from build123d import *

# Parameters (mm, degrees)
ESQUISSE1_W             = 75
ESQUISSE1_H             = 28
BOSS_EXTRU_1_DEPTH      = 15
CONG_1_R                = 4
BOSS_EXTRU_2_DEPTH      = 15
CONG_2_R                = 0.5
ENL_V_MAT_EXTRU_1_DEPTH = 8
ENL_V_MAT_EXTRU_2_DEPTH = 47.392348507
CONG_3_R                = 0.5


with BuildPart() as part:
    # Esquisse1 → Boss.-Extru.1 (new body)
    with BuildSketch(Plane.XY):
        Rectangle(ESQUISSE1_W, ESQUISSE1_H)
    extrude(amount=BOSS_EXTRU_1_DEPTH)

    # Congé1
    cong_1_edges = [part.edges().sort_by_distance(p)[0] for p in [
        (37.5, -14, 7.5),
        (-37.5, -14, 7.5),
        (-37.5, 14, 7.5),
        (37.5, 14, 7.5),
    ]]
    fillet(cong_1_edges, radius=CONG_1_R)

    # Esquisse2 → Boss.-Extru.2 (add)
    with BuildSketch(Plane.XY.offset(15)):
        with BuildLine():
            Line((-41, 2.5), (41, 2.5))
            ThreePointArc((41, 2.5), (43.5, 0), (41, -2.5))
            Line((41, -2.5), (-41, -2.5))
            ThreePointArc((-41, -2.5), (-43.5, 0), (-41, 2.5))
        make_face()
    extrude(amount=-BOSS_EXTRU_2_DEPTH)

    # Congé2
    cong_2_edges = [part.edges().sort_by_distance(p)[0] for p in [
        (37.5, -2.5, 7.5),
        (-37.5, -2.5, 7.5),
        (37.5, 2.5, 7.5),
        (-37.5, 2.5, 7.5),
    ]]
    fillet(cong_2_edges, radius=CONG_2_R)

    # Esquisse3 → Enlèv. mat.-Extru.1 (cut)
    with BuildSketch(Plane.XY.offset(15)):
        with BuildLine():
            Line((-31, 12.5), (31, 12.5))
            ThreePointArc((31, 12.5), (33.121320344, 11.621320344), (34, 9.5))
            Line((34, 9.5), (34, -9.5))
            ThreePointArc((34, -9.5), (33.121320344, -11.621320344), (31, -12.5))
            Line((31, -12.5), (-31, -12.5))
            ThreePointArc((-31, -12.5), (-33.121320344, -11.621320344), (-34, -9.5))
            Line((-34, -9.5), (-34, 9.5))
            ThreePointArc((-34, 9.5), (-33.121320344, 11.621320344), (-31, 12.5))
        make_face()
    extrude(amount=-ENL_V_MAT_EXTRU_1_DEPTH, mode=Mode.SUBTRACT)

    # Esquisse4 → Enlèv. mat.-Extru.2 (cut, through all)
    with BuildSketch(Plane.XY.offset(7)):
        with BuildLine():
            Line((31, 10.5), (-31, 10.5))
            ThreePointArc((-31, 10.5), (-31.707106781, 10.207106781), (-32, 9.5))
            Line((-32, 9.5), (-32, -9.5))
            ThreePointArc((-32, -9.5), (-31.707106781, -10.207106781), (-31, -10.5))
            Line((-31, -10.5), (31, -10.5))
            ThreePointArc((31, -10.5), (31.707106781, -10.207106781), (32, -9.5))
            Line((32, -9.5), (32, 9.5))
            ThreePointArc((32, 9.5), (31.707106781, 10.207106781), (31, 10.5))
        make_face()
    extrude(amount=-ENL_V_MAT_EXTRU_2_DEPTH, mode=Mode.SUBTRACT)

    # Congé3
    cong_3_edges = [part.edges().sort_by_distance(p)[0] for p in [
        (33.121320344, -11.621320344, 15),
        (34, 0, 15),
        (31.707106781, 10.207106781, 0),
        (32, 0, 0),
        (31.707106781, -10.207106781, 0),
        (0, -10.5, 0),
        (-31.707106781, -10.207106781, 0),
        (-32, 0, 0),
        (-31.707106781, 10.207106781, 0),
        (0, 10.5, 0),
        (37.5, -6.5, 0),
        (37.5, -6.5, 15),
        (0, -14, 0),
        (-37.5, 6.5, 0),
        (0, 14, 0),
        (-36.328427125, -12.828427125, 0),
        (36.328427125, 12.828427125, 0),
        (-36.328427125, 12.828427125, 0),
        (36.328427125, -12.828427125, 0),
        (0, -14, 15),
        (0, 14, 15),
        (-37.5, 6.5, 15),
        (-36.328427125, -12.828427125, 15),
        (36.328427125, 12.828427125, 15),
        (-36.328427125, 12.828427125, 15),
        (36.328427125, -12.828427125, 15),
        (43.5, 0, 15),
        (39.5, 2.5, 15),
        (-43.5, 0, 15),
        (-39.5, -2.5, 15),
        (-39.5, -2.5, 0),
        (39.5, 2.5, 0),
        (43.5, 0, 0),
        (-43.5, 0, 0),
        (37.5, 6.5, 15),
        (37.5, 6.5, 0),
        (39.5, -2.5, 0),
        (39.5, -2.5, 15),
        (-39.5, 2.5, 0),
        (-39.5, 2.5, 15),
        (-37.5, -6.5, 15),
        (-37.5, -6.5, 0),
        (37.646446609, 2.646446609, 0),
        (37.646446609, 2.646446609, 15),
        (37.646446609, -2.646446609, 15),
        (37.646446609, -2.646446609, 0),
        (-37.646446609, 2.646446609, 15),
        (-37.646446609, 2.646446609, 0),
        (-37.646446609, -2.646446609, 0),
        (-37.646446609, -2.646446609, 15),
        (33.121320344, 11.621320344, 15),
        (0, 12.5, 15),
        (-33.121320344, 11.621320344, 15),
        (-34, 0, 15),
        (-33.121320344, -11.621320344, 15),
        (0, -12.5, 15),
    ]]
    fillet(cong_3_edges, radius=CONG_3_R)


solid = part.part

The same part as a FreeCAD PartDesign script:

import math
import FreeCAD as App
import Part
import Sketcher
from FreeCAD import Vector
Q = App.Units.Quantity


def edges_at(feature, points):
    """Names of the edges that pass closest to the given points."""
    edges = feature.Shape.Edges
    near = lambda p: min(range(len(edges)), key=lambda i: edges[i].distToShape(Part.Vertex(*p))[0])
    return sorted({f"Edge{near(p) + 1}" for p in points})

doc = App.newDocument("Part")
body = doc.addObject("PartDesign::Body", "Body")

sketch1 = doc.addObject("Sketcher::SketchObject", "Sketch")
body.addObject(sketch1)
sketch1.AttachmentSupport = (doc.XY_Plane, [""])
sketch1.MapMode = "FlatFace"
sketch1.addGeometry([
    Part.LineSegment(Vector(-37.5, 14, 0), Vector(-37.5, -14, 0)),
    Part.LineSegment(Vector(-37.5, -14, 0), Vector(37.5, -14, 0)),
    Part.LineSegment(Vector(37.5, -14, 0), Vector(37.5, 14, 0)),
    Part.LineSegment(Vector(37.5, 14, 0), Vector(-37.5, 14, 0)),
], False)
sketch1.addConstraint([
    Sketcher.Constraint("Coincident", 0, 2, 1, 1),
    Sketcher.Constraint("Coincident", 1, 2, 2, 1),
    Sketcher.Constraint("Coincident", 2, 2, 3, 1),
    Sketcher.Constraint("Coincident", 3, 2, 0, 1),
    Sketcher.Constraint("Vertical", 0),
    Sketcher.Constraint("Horizontal", 1),
    Sketcher.Constraint("Vertical", 2),
    Sketcher.Constraint("Horizontal", 3),
    Sketcher.Constraint("Symmetric", 0, 2, 2, 2, -1, 1),
    Sketcher.Constraint("DistanceX", 1, 1, 1, 2, Q("75 mm")),
    Sketcher.Constraint("DistanceY", 0, 2, 0, 1, Q("28 mm")),
])
pad1 = doc.addObject("PartDesign::Pad", "Pad")
body.addObject(pad1)
pad1.Profile = sketch1
pad1.Length = 15
doc.recompute()

fillet = doc.addObject("PartDesign::Fillet", "Fillet")
body.addObject(fillet)
fillet.Base = (pad1, edges_at(pad1, [
    (37.5, -14, 7.5),
    (-37.5, -14, 7.5),
    (-37.5, 14, 7.5),
    (37.5, 14, 7.5),
]))
fillet.Radius = 4

sketch2 = doc.addObject("Sketcher::SketchObject", "Sketch001")
body.addObject(sketch2)
sketch2.AttachmentSupport = (doc.XY_Plane, [""])
sketch2.MapMode = "FlatFace"
sketch2.AttachmentOffset = App.Placement(Vector(0, 0, 15), App.Rotation())
sketch2.addGeometry([
    Part.LineSegment(Vector(41, 2.5, 0), Vector(-41, 2.5, 0)),
    Part.ArcOfCircle(Part.Circle(Vector(-41, 0, 0), Vector(0, 0, 1), 2.5), math.radians(90), math.radians(270)),
    Part.LineSegment(Vector(-41, -2.5, 0), Vector(41, -2.5, 0)),
    Part.ArcOfCircle(Part.Circle(Vector(41, 0, 0), Vector(0, 0, 1), 2.5), math.radians(-90), math.radians(90)),
], False)
sketch2.addConstraint([
    Sketcher.Constraint("Tangent", 0, 2, 1, 1),
    Sketcher.Constraint("Tangent", 1, 2, 2, 1),
    Sketcher.Constraint("Tangent", 2, 2, 3, 1),
    Sketcher.Constraint("Tangent", 3, 2, 0, 1),
    Sketcher.Constraint("Horizontal", 0),
    Sketcher.Constraint("Horizontal", 2),
    Sketcher.Constraint("Symmetric", 1, 3, 3, 3, -1, 1),
    Sketcher.Constraint("Radius", 1, Q("2.5 mm")),
    Sketcher.Constraint("DistanceX", 0, 2, 0, 1, Q("82 mm")),
])
pad2 = doc.addObject("PartDesign::Pad", "Pad001")
body.addObject(pad2)
pad2.Profile = sketch2
pad2.Length = 15
pad2.Reversed = True
doc.recompute()

fillet2 = doc.addObject("PartDesign::Fillet", "Fillet001")
body.addObject(fillet2)
fillet2.Base = (pad2, edges_at(pad2, [
    (37.5, -2.5, 7.5),
    (-37.5, -2.5, 7.5),
    (37.5, 2.5, 7.5),
    (-37.5, 2.5, 7.5),
]))
fillet2.Radius = 0.5

sketch3 = doc.addObject("Sketcher::SketchObject", "Sketch002")
body.addObject(sketch3)
sketch3.AttachmentSupport = (doc.XY_Plane, [""])
sketch3.MapMode = "FlatFace"
sketch3.AttachmentOffset = App.Placement(Vector(0, 0, 15), App.Rotation())
sketch3.addGeometry([
    Part.LineSegment(Vector(31, 12.5, 0), Vector(-31, 12.5, 0)),
    Part.ArcOfCircle(Part.Circle(Vector(-31, 9.5, 0), Vector(0, 0, 1), 3), math.radians(90), math.radians(180)),
    Part.LineSegment(Vector(-34, 9.5, 0), Vector(-34, -9.5, 0)),
    Part.ArcOfCircle(Part.Circle(Vector(-31, -9.5, 0), Vector(0, 0, 1), 3), math.radians(180), math.radians(270)),
    Part.LineSegment(Vector(-31, -12.5, 0), Vector(31, -12.5, 0)),
    Part.ArcOfCircle(Part.Circle(Vector(31, -9.5, 0), Vector(0, 0, 1), 3), math.radians(-90), math.radians(0)),
    Part.LineSegment(Vector(34, -9.5, 0), Vector(34, 9.5, 0)),
    Part.ArcOfCircle(Part.Circle(Vector(31, 9.5, 0), Vector(0, 0, 1), 3), math.radians(0), math.radians(90)),
], False)
sketch3.addConstraint([
    Sketcher.Constraint("Tangent", 0, 2, 1, 1),
    Sketcher.Constraint("Tangent", 1, 2, 2, 1),
    Sketcher.Constraint("Tangent", 2, 2, 3, 1),
    Sketcher.Constraint("Tangent", 3, 2, 4, 1),
    Sketcher.Constraint("Tangent", 4, 2, 5, 1),
    Sketcher.Constraint("Tangent", 5, 2, 6, 1),
    Sketcher.Constraint("Tangent", 6, 2, 7, 1),
    Sketcher.Constraint("Tangent", 7, 2, 0, 1),
    Sketcher.Constraint("Horizontal", 0),
    Sketcher.Constraint("Vertical", 2),
    Sketcher.Constraint("Horizontal", 4),
    Sketcher.Constraint("Vertical", 6),
    Sketcher.Constraint("Equal", 1, 3),
    Sketcher.Constraint("Equal", 3, 5),
    Sketcher.Constraint("Equal", 5, 7),
    Sketcher.Constraint("Symmetric", 1, 3, 5, 3, -1, 1),
    Sketcher.Constraint("Radius", 1, Q("3 mm")),
    Sketcher.Constraint("DistanceX", 0, 2, 0, 1, Q("62 mm")),
    Sketcher.Constraint("DistanceY", 2, 2, 2, 1, Q("19 mm")),
])
pocket1 = doc.addObject("PartDesign::Pocket", "Pocket")
body.addObject(pocket1)
pocket1.Profile = sketch3
pocket1.Length = 8

sketch4 = doc.addObject("Sketcher::SketchObject", "Sketch003")
body.addObject(sketch4)
sketch4.AttachmentSupport = (doc.XY_Plane, [""])
sketch4.MapMode = "FlatFace"
sketch4.AttachmentOffset = App.Placement(Vector(0, 0, 7), App.Rotation())
sketch4.addGeometry([
    Part.LineSegment(Vector(31, 10.5, 0), Vector(-31, 10.5, 0)),
    Part.ArcOfCircle(Part.Circle(Vector(-31, 9.5, 0), Vector(0, 0, 1), 1), math.radians(90), math.radians(180)),
    Part.LineSegment(Vector(-32, 9.5, 0), Vector(-32, -9.5, 0)),
    Part.ArcOfCircle(Part.Circle(Vector(-31, -9.5, 0), Vector(0, 0, 1), 1), math.radians(-180), math.radians(-90)),
    Part.LineSegment(Vector(-31, -10.5, 0), Vector(31, -10.5, 0)),
    Part.ArcOfCircle(Part.Circle(Vector(31, -9.5, 0), Vector(0, 0, 1), 1), math.radians(-90), math.radians(0)),
    Part.LineSegment(Vector(32, -9.5, 0), Vector(32, 9.5, 0)),
    Part.ArcOfCircle(Part.Circle(Vector(31, 9.5, 0), Vector(0, 0, 1), 1), math.radians(0), math.radians(90)),
], False)
sketch4.addConstraint([
    Sketcher.Constraint("Tangent", 0, 2, 1, 1),
    Sketcher.Constraint("Tangent", 1, 2, 2, 1),
    Sketcher.Constraint("Tangent", 2, 2, 3, 1),
    Sketcher.Constraint("Tangent", 3, 2, 4, 1),
    Sketcher.Constraint("Tangent", 4, 2, 5, 1),
    Sketcher.Constraint("Tangent", 5, 2, 6, 1),
    Sketcher.Constraint("Tangent", 6, 2, 7, 1),
    Sketcher.Constraint("Tangent", 7, 2, 0, 1),
    Sketcher.Constraint("Horizontal", 0),
    Sketcher.Constraint("Vertical", 2),
    Sketcher.Constraint("Horizontal", 4),
    Sketcher.Constraint("Vertical", 6),
    Sketcher.Constraint("Equal", 1, 3),
    Sketcher.Constraint("Equal", 3, 5),
    Sketcher.Constraint("Equal", 5, 7),
    Sketcher.Constraint("Symmetric", 1, 3, 5, 3, -1, 1),
    Sketcher.Constraint("Radius", 1, Q("1 mm")),
    Sketcher.Constraint("DistanceX", 0, 2, 0, 1, Q("62 mm")),
    Sketcher.Constraint("DistanceY", 2, 2, 2, 1, Q("19 mm")),
])
pocket2 = doc.addObject("PartDesign::Pocket", "Pocket001")
body.addObject(pocket2)
pocket2.Profile = sketch4
pocket2.Type = "ThroughAll"
doc.recompute()

fillet3 = doc.addObject("PartDesign::Fillet", "Fillet002")
body.addObject(fillet3)
fillet3.Base = (pocket2, edges_at(pocket2, [
    (33.121, -11.621, 15),
    (34, 0, 15),
    (31.707, 10.207, 0),
    (32, 0, 0),
    (31.707, -10.207, 0),
    (0, -10.5, 0),
    (-31.707, -10.207, 0),
    (-32, 0, 0),
    (-31.707, 10.207, 0),
    (0, 10.5, 0),
    (37.5, -6.5, 0),
    (37.5, -6.5, 15),
    (0, -14, 0),
    (-37.5, 6.5, 0),
    (0, 14, 0),
    (-36.328, -12.828, 0),
    (36.328, 12.828, 0),
    (-36.328, 12.828, 0),
    (36.328, -12.828, 0),
    (0, -14, 15),
    (0, 14, 15),
    (-37.5, 6.5, 15),
    (-36.328, -12.828, 15),
    (36.328, 12.828, 15),
    (-36.328, 12.828, 15),
    (36.328, -12.828, 15),
    (43.5, 0, 15),
    (39.5, 2.5, 15),
    (-43.5, 0, 15),
    (-39.5, -2.5, 15),
    (-39.5, -2.5, 0),
    (39.5, 2.5, 0),
    (43.5, 0, 0),
    (-43.5, 0, 0),
    (37.5, 6.5, 15),
    (37.5, 6.5, 0),
    (39.5, -2.5, 0),
    (39.5, -2.5, 15),
    (-39.5, 2.5, 0),
    (-39.5, 2.5, 15),
    (-37.5, -6.5, 15),
    (-37.5, -6.5, 0),
    (37.646, 2.646, 0),
    (37.646, 2.646, 15),
    (37.646, -2.646, 15),
    (37.646, -2.646, 0),
    (-37.646, 2.646, 15),
    (-37.646, 2.646, 0),
    (-37.646, -2.646, 0),
    (-37.646, -2.646, 15),
    (33.121, 11.621, 15),
    (0, 12.5, 15),
    (-33.121, 11.621, 15),
    (-34, 0, 15),
    (-33.121, -11.621, 15),
    (0, -12.5, 15),
]))
fillet3.Radius = 0.5

doc.recompute()
